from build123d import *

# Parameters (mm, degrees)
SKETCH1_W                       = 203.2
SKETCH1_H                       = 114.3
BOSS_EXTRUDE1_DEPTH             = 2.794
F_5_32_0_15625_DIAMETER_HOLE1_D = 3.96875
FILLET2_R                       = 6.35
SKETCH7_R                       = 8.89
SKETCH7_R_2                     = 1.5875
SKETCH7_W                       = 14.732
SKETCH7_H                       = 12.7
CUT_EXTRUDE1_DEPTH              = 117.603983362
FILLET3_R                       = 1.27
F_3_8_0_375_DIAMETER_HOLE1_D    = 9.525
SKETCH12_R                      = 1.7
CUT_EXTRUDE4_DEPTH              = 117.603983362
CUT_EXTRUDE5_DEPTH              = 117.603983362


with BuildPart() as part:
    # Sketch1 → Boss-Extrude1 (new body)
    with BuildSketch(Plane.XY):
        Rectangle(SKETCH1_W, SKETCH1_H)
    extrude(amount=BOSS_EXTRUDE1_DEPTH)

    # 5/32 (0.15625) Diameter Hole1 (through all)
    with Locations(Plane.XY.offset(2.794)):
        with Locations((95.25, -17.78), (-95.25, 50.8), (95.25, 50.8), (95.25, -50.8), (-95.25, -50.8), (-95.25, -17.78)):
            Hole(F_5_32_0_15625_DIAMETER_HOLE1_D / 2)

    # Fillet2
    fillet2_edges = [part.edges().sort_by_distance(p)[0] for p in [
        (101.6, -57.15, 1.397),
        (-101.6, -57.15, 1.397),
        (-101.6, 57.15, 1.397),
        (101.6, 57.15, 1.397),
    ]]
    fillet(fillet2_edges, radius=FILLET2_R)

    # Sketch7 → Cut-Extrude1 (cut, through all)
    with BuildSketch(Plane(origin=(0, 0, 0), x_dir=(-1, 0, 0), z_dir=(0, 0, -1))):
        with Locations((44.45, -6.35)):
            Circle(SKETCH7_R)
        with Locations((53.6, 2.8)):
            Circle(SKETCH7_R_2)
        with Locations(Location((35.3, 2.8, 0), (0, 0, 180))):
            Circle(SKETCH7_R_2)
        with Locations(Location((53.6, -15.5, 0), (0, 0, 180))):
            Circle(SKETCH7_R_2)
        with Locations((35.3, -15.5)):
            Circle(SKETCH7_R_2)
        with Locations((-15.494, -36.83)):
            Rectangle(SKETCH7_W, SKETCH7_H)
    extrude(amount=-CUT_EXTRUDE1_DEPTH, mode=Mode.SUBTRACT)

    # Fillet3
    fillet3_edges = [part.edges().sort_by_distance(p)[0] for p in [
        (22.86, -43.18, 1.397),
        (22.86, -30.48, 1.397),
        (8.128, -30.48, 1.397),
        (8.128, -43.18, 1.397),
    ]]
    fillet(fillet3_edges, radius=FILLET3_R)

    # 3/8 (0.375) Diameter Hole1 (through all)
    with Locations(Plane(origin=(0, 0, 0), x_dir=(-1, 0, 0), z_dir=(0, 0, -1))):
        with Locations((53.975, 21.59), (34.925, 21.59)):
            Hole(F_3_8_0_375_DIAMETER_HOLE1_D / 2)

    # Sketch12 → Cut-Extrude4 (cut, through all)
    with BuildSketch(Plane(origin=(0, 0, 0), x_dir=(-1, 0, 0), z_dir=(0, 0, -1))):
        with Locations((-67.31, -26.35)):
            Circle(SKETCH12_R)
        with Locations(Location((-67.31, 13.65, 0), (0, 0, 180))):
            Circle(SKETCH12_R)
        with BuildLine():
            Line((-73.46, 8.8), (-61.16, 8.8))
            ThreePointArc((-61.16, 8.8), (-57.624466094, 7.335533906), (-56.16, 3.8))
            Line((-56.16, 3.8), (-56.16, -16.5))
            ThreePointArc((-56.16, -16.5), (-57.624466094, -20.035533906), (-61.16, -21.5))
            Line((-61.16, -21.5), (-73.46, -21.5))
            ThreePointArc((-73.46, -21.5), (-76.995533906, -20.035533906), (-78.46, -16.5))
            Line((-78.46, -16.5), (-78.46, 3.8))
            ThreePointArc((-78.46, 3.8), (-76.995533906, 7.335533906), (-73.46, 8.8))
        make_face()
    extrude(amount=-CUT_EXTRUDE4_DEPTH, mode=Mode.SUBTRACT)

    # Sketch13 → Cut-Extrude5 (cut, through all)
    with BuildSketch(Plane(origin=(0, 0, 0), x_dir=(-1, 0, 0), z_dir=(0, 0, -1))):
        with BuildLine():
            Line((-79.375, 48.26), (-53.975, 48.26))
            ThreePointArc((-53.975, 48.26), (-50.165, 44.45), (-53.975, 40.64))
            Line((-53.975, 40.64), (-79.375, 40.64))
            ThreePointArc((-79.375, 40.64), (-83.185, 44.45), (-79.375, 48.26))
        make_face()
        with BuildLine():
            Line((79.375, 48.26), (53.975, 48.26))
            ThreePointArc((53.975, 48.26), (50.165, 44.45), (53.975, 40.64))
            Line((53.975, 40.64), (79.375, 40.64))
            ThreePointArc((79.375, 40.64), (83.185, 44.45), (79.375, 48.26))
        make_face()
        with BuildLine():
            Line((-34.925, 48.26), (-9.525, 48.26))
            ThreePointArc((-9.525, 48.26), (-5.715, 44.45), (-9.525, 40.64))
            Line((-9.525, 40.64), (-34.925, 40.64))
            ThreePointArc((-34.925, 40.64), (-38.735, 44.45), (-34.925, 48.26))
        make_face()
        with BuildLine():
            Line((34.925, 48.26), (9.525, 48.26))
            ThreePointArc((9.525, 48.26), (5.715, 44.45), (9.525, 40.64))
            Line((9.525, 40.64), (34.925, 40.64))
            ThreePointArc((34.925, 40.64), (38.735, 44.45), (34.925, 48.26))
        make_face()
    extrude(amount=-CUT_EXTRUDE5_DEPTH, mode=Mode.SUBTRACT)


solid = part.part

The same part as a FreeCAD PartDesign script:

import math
import FreeCAD as App
import Part
import Sketcher
Q = App.Units.Quantity


def edges_at(feature, points):
    """Names of the edges that pass closest to the given points."""
    edges = feature.Shape.Edges
    near = lambda p: min(range(len(edges)), key=lambda i: edges[i].distToShape(Part.Vertex(*p))[0])
    return sorted({f"Edge{near(p) + 1}" for p in points})


def add_polygon(sketch, points):
    """Adds a closed chain of lines whose ends are joined by coincident constraints."""
    first, n = sketch.GeometryCount, len(points)
    for a, b in zip(points, points[1:] + points[:1]):
        sketch.addGeometry(Part.LineSegment(App.Vector(*a, 0), App.Vector(*b, 0)), False)
    for i in range(n):
        sketch.addConstraint(Sketcher.Constraint("Coincident", first + i, 2, first + (i + 1) % n, 1))

doc = App.newDocument("Part")
body = doc.addObject("PartDesign::Body", "Body")

# Sketch on XY plane
sketch1 = doc.addObject("Sketcher::SketchObject", "Sketch")
body.addObject(sketch1)
sketch1.AttachmentSupport = (doc.XY_Plane, [""])
sketch1.MapMode = "FlatFace"
add_polygon(sketch1, [(-102, 57), (-102, -57), (102, -57), (102, 57)])  # lines 0-3
sketch1.addConstraint([
    Sketcher.Constraint("Vertical", 0),
    Sketcher.Constraint("Horizontal", 1),
    Sketcher.Constraint("Vertical", 2),
    Sketcher.Constraint("Horizontal", 3),
    Sketcher.Constraint("Symmetric", 0, 2, 2, 2, -1, 1),
    Sketcher.Constraint("DistanceX", 1, 1, 1, 2, Q("8 in")),
    Sketcher.Constraint("DistanceY", 0, 2, 0, 1, Q("4.5 in")),
])
pad1 = doc.addObject("PartDesign::Pad", "Pad")
body.addObject(pad1)
pad1.Profile = sketch1
pad1.Length = Q("0.11 in")

# Sketch on XY plane
sketch2 = doc.addObject("Sketcher::SketchObject", "Sketch001")
body.addObject(sketch2)
sketch2.AttachmentSupport = (doc.XY_Plane, [""])
sketch2.MapMode = "FlatFace"
sketch2.AttachmentOffset = App.Placement(App.Vector(0, 0, 0.11 * 25.4), App.Rotation())
sketch2.addGeometry([
    Part.Circle(App.Vector(95.2, -17.8, 0), App.Vector(0, 0, 1), 2),  # 0
    Part.Circle(App.Vector(-95.2, 50.8, 0), App.Vector(0, 0, 1), 2),  # 1
    Part.Circle(App.Vector(95.2, 50.8, 0), App.Vector(0, 0, 1), 2),  # 2
    Part.Circle(App.Vector(95.2, -50.8, 0), App.Vector(0, 0, 1), 2),  # 3
    Part.Circle(App.Vector(-95.2, -50.8, 0), App.Vector(0, 0, 1), 2),  # 4
    Part.Circle(App.Vector(-95.2, -17.8, 0), App.Vector(0, 0, 1), 2),  # 5
], False)
sketch2.addConstraint([
    Sketcher.Constraint("Equal", 0, 1),
    Sketcher.Constraint("Equal", 1, 2),
    Sketcher.Constraint("Equal", 2, 3),
    Sketcher.Constraint("Equal", 3, 4),
    Sketcher.Constraint("Equal", 4, 5),
    Sketcher.Constraint("Symmetric", 1, 3, 3, 3, -1, 1),
    Sketcher.Constraint("Symmetric", 2, 3, 4, 3, -1, 1),
    Sketcher.Constraint("Symmetric", 1, 3, 2, 3, -2),
    Sketcher.Constraint("Symmetric", 0, 3, 5, 3, -2),
    Sketcher.Constraint("Vertical", 0, 3, 2, 3),
    Sketcher.Constraint("Diameter", 0, Q("0.15625 in")),
    Sketcher.Constraint("DistanceY", -1, 1, 1, 3, Q("2 in")),
    Sketcher.Constraint("DistanceY", 0, 3, -1, 1, Q("0.7 in")),
    Sketcher.Constraint("DistanceX", 1, 3, 0, 3, Q("7.5 in")),
])
doc.recompute()
hole = doc.addObject("PartDesign::Hole", "Hole")
body.addObject(hole)
hole.Profile = sketch2
hole.ThreadType = "None"
hole.Diameter = Q("0.15625 in")
hole.DepthType = "ThroughAll"
doc.recompute()

fillet = doc.addObject("PartDesign::Fillet", "Fillet")
body.addObject(fillet)
fillet.Base = (hole, edges_at(hole, [
    (101.6, -57.15, 1.397),
    (-101.6, -57.15, 1.397),
    (-101.6, 57.15, 1.397),
    (101.6, 57.15, 1.397),
]))
fillet.Radius = Q("0.25 in")

# Sketch on XY plane
sketch3 = doc.addObject("Sketcher::SketchObject", "Sketch002")
body.addObject(sketch3)
sketch3.AttachmentSupport = (doc.XY_Plane, [""])
sketch3.MapMode = "FlatFace"
sketch3.addGeometry(Part.Circle(App.Vector(-44.5, -6.3, 0), App.Vector(0, 0, 1), 8.9), False)  # 0
sketch3.addGeometry(Part.Circle(App.Vector(-53.6, 2.8, 0), App.Vector(0, 0, 1), 1.6), False)  # 1
sketch3.addGeometry(Part.Circle(App.Vector(-35.3, 2.8, 0), App.Vector(0, 0, 1), 1.6), False)  # 2
sketch3.addGeometry(Part.Circle(App.Vector(-53.6, -15.5, 0), App.Vector(0, 0, 1), 1.6), False)  # 3
sketch3.addGeometry(Part.Circle(App.Vector(-35.3, -15.5, 0), App.Vector(0, 0, 1), 1.6), False)  # 4
add_polygon(sketch3, [(22.9, -30.5), (22.9, -43.2), (8.1, -43.2), (8.1, -30.5)])  # lines 5-8
sketch3.addConstraint([
    Sketcher.Constraint("Vertical", 5),
    Sketcher.Constraint("Horizontal", 6),
    Sketcher.Constraint("Vertical", 7),
    Sketcher.Constraint("Horizontal", 8),
    Sketcher.Constraint("Equal", 1, 2),
    Sketcher.Constraint("Equal", 2, 3),
    Sketcher.Constraint("Equal", 3, 4),
    Sketcher.Constraint("Horizontal", 1, 3, 2, 3),
    Sketcher.Constraint("Horizontal", 3, 3, 4, 3),
    Sketcher.Constraint("Vertical", 1, 3, 3, 3),
    Sketcher.Constraint("Vertical", 2, 3, 4, 3),
    Sketcher.Constraint("Diameter", 0, Q("0.7 in")),
    Sketcher.Constraint("Diameter", 1, Q("0.125 in")),
    Sketcher.Constraint("DistanceY", 5, 2, 5, 1, Q("0.5 in")),
    Sketcher.Constraint("DistanceX", 6, 2, 6, 1, Q("0.58 in")),
    Sketcher.Constraint("DistanceX", -1, 1, 5, 2, Q("0.9 in")),
    Sketcher.Constraint("DistanceY", 5, 2, -1, 1, Q("1.7 in")),
    Sketcher.Constraint("DistanceX", 0, 3, -1, 1, Q("1.75 in")),
    Sketcher.Constraint("DistanceY", 0, 3, -1, 1, Q("0.25 in")),
    Sketcher.Constraint("DistanceX", 1, 3, -1, 1, Q("53.6 mm")),
    Sketcher.Constraint("DistanceY", -1, 1, 1, 3, Q("2.8 mm")),
    Sketcher.Constraint("DistanceX", 2, 3, -1, 1, Q("35.3 mm")),
    Sketcher.Constraint("DistanceY", 3, 3, -1, 1, Q("15.5 mm")),
])
pocket1 = doc.addObject("PartDesign::Pocket", "Pocket")
body.addObject(pocket1)
pocket1.Profile = sketch3
pocket1.Type = "ThroughAll"
pocket1.Reversed = True
doc.recompute()

fillet2 = doc.addObject("PartDesign::Fillet", "Fillet001")
body.addObject(fillet2)
fillet2.Base = (pocket1, edges_at(pocket1, [
    (22.86, -43.18, 1.397),
    (22.86, -30.48, 1.397),
    (8.128, -30.48, 1.397),
    (8.128, -43.18, 1.397),
]))
fillet2.Radius = Q("0.05 in")

# Sketch on XY plane
sketch4 = doc.addObject("Sketcher::SketchObject", "Sketch003")
body.addObject(sketch4)
sketch4.AttachmentSupport = (doc.XY_Plane, [""])
sketch4.MapMode = "FlatFace"
sketch4.addGeometry([
    Part.Circle(App.Vector(-54, 21.6, 0), App.Vector(0, 0, 1), 4.8),
    Part.Circle(App.Vector(-34.9, 21.6, 0), App.Vector(0, 0, 1), 4.8),
], False)
sketch4.addConstraint([
    Sketcher.Constraint("Equal", 0, 1),
    Sketcher.Constraint("Horizontal", 0, 3, 1, 3),
    Sketcher.Constraint("Diameter", 0, Q("0.375 in")),
    Sketcher.Constraint("DistanceY", -1, 1, 0, 3, Q("0.85 in")),
    Sketcher.Constraint("DistanceX", 0, 3, 1, 3, Q("0.75 in")),
    Sketcher.Constraint("DistanceX", 0, 3, -1, 1, Q("2.125 in")),
])
doc.recompute()
hole2 = doc.addObject("PartDesign::Hole", "Hole001")
body.addObject(hole2)
hole2.Profile = sketch4
hole2.ThreadType = "None"
hole2.Diameter = Q("0.375 in")
hole2.DepthType = "ThroughAll"
hole2.Reversed = True

# Sketch on XY plane
sketch5 = doc.addObject("Sketcher::SketchObject", "Sketch004")
body.addObject(sketch5)
sketch5.AttachmentSupport = (doc.XY_Plane, [""])
sketch5.MapMode = "FlatFace"
sketch5.addGeometry([
    Part.Circle(App.Vector(67.3, -26.4, 0), App.Vector(0, 0, 1), 1.7),  # 0
    Part.Circle(App.Vector(67.3, 13.7, 0), App.Vector(0, 0, 1), 1.7),  # 1
    Part.LineSegment(App.Vector(61.2, 8.8, 0), App.Vector(73.5, 8.8, 0)),  # 2
    Part.ArcOfCircle(Part.Circle(App.Vector(73.5, 3.8, 0), App.Vector(0, 0, 1), 5), math.radians(0), math.radians(90)),  # 3
    Part.LineSegment(App.Vector(78.5, 3.8, 0), App.Vector(78.5, -16.5, 0)),  # 4
    Part.ArcOfCircle(Part.Circle(App.Vector(73.5, -16.5, 0), App.Vector(0, 0, 1), 5), math.radians(-90), math.radians(0)),  # 5
    Part.LineSegment(App.Vector(73.5, -21.5, 0), App.Vector(61.2, -21.5, 0)),  # 6
    Part.ArcOfCircle(Part.Circle(App.Vector(61.2, -16.5, 0), App.Vector(0, 0, 1), 5), math.radians(180), math.radians(270)),  # 7
    Part.LineSegment(App.Vector(56.2, -16.5, 0), App.Vector(56.2, 3.8, 0)),  # 8
    Part.ArcOfCircle(Part.Circle(App.Vector(61.2, 3.8, 0), App.Vector(0, 0, 1), 5), math.radians(90), math.radians(180)),  # 9
], False)
sketch5.addConstraint([
    Sketcher.Constraint("Tangent", 2, 2, 3, 2),
    Sketcher.Constraint("Tangent", 3, 1, 4, 1),
    Sketcher.Constraint("Tangent", 4, 2, 5, 2),
    Sketcher.Constraint("Tangent", 5, 1, 6, 1),
    Sketcher.Constraint("Tangent", 6, 2, 7, 2),
    Sketcher.Constraint("Tangent", 7, 1, 8, 1),
    Sketcher.Constraint("Tangent", 8, 2, 9, 2),
    Sketcher.Constraint("Tangent", 9, 1, 2, 1),
    Sketcher.Constraint("Horizontal", 2),
    Sketcher.Constraint("Vertical", 4),
    Sketcher.Constraint("Horizontal", 6),
    Sketcher.Constraint("Vertical", 8),
    Sketcher.Constraint("Equal", 0, 1),
    Sketcher.Constraint("Equal", 3, 5),
    Sketcher.Constraint("Equal", 5, 7),
    Sketcher.Constraint("Equal", 7, 9),
    Sketcher.Constraint("Vertical", 0, 3, 1, 3),
    Sketcher.Constraint("Diameter", 0, Q("3.4 mm")),
    Sketcher.Constraint("DistanceX", -1, 1, 0, 3, Q("2.65 in")),
    Sketcher.Constraint("Radius", 3, Q("5 mm")),
    Sketcher.Constraint("DistanceX", 2, 1, 2, 2, Q("12.3 mm")),
    Sketcher.Constraint("DistanceY", 4, 2, 4, 1, Q("20.3 mm")),
    Sketcher.Constraint("DistanceY", 0, 3, -1, 1, Q("26.35 mm")),
    Sketcher.Constraint("DistanceY", -1, 1, 1, 3, Q("13.65 mm")),
    Sketcher.Constraint("DistanceX", -1, 1, 3, 3, Q("73.46 mm")),
    Sketcher.Constraint("DistanceY", -1, 1, 3, 3, Q("3.8 mm")),
])
pocket2 = doc.addObject("PartDesign::Pocket", "Pocket001")
body.addObject(pocket2)
pocket2.Profile = sketch5
pocket2.Type = "ThroughAll"
pocket2.Reversed = True

# Sketch on XY plane
sketch6 = doc.addObject("Sketcher::SketchObject", "Sketch005")
body.addObject(sketch6)
sketch6.AttachmentSupport = (doc.XY_Plane, [""])
sketch6.MapMode = "FlatFace"
sketch6.addGeometry([
    Part.LineSegment(App.Vector(54, 48.3, 0), App.Vector(79.4, 48.3, 0)),  # 0
    Part.ArcOfCircle(Part.Circle(App.Vector(79.4, 44.5, 0), App.Vector(0, 0, 1), 3.8), math.radians(-90), math.radians(90)),  # 1
    Part.LineSegment(App.Vector(79.4, 40.6, 0), App.Vector(54, 40.6, 0)),  # 2
    Part.ArcOfCircle(Part.Circle(App.Vector(54, 44.5, 0), App.Vector(0, 0, 1), 3.8), math.radians(90), math.radians(270)),  # 3
    Part.LineSegment(App.Vector(-79.4, 48.3, 0), App.Vector(-54, 48.3, 0)),  # 4
    Part.ArcOfCircle(Part.Circle(App.Vector(-54, 44.5, 0), App.Vector(0, 0, 1), 3.8), math.radians(-90), math.radians(90)),  # 5
    Part.LineSegment(App.Vector(-54, 40.6, 0), App.Vector(-79.4, 40.6, 0)),  # 6
    Part.ArcOfCircle(Part.Circle(App.Vector(-79.4, 44.5, 0), App.Vector(0, 0, 1), 3.8), math.radians(90), math.radians(270)),  # 7
    Part.LineSegment(App.Vector(9.5, 48.3, 0), App.Vector(34.9, 48.3, 0)),  # 8
    Part.ArcOfCircle(Part.Circle(App.Vector(34.9, 44.5, 0), App.Vector(0, 0, 1), 3.8), math.radians(-90), math.radians(90)),  # 9
    Part.LineSegment(App.Vector(34.9, 40.6, 0), App.Vector(9.5, 40.6, 0)),  # 10
    Part.ArcOfCircle(Part.Circle(App.Vector(9.5, 44.5, 0), App.Vector(0, 0, 1), 3.8), math.radians(90), math.radians(270)),  # 11
    Part.LineSegment(App.Vector(-34.9, 48.3, 0), App.Vector(-9.5, 48.3, 0)),  # 12
    Part.ArcOfCircle(Part.Circle(App.Vector(-9.5, 44.5, 0), App.Vector(0, 0, 1), 3.8), math.radians(-90), math.radians(90)),  # 13
    Part.LineSegment(App.Vector(-9.5, 40.6, 0), App.Vector(-34.9, 40.6, 0)),  # 14
    Part.ArcOfCircle(Part.Circle(App.Vector(-34.9, 44.5, 0), App.Vector(0, 0, 1), 3.8), math.radians(90), math.radians(270)),  # 15
], False)
sketch6.addConstraint([
    Sketcher.Constraint("Tangent", 0, 2, 1, 2),
    Sketcher.Constraint("Tangent", 1, 1, 2, 1),
    Sketcher.Constraint("Tangent", 2, 2, 3, 2),
    Sketcher.Constraint("Tangent", 3, 1, 0, 1),
    Sketcher.Constraint("Tangent", 4, 2, 5, 2),
    Sketcher.Constraint("Tangent", 5, 1, 6, 1),
    Sketcher.Constraint("Tangent", 6, 2, 7, 2),
    Sketcher.Constraint("Tangent", 7, 1, 4, 1),
    Sketcher.Constraint("Tangent", 8, 2, 9, 2),
    Sketcher.Constraint("Tangent", 9, 1, 10, 1),
    Sketcher.Constraint("Tangent", 10, 2, 11, 2),
    Sketcher.Constraint("Tangent", 11, 1, 8, 1),
    Sketcher.Constraint("Tangent", 12, 2, 13, 2),
    Sketcher.Constraint("Tangent", 13, 1, 14, 1),
    Sketcher.Constraint("Tangent", 14, 2, 15, 2),
    Sketcher.Constraint("Tangent", 15, 1, 12, 1),
    Sketcher.Constraint("Horizontal", 0),
    Sketcher.Constraint("Horizontal", 2),
    Sketcher.Constraint("Horizontal", 4),
    Sketcher.Constraint("Horizontal", 6),
    Sketcher.Constraint("Horizontal", 8),
    Sketcher.Constraint("Horizontal", 10),
    Sketcher.Constraint("Horizontal", 12),
    Sketcher.Constraint("Horizontal", 14),
    Sketcher.Constraint("Equal", 3, 5),
    Sketcher.Constraint("Equal", 7, 9),
    Sketcher.Constraint("Equal", 11, 13),
    Sketcher.Constraint("Symmetric", 3, 3, 5, 3, -2),
    Sketcher.Constraint("Symmetric", 11, 3, 13, 3, -2),
    Sketcher.Constraint("Horizontal", 7, 3, 9, 3),
    Sketcher.Constraint("Equal", 2, 4),
    Sketcher.Constraint("Equal", 6, 8),
    Sketcher.Constraint("Equal", 10, 12),
    Sketcher.Constraint("DistanceX", 0, 1, 0, 2, Q("1 in")),
    Sketcher.Constraint("Radius", 1, Q("0.15 in")),
    Sketcher.Constraint("DistanceY", -1, 1, 0, 2, Q("1.9 in")),
    Sketcher.Constraint("DistanceX", 5, 3, 9, 3, Q("3.5 in")),
    Sketcher.Constraint("DistanceX", 5, 3, 3, 3, Q("4.25 in")),
])
pocket3 = doc.addObject("PartDesign::Pocket", "Pocket002")
body.addObject(pocket3)
pocket3.Profile = sketch6
pocket3.Type = "ThroughAll"
pocket3.Reversed = True

doc.recompute()
